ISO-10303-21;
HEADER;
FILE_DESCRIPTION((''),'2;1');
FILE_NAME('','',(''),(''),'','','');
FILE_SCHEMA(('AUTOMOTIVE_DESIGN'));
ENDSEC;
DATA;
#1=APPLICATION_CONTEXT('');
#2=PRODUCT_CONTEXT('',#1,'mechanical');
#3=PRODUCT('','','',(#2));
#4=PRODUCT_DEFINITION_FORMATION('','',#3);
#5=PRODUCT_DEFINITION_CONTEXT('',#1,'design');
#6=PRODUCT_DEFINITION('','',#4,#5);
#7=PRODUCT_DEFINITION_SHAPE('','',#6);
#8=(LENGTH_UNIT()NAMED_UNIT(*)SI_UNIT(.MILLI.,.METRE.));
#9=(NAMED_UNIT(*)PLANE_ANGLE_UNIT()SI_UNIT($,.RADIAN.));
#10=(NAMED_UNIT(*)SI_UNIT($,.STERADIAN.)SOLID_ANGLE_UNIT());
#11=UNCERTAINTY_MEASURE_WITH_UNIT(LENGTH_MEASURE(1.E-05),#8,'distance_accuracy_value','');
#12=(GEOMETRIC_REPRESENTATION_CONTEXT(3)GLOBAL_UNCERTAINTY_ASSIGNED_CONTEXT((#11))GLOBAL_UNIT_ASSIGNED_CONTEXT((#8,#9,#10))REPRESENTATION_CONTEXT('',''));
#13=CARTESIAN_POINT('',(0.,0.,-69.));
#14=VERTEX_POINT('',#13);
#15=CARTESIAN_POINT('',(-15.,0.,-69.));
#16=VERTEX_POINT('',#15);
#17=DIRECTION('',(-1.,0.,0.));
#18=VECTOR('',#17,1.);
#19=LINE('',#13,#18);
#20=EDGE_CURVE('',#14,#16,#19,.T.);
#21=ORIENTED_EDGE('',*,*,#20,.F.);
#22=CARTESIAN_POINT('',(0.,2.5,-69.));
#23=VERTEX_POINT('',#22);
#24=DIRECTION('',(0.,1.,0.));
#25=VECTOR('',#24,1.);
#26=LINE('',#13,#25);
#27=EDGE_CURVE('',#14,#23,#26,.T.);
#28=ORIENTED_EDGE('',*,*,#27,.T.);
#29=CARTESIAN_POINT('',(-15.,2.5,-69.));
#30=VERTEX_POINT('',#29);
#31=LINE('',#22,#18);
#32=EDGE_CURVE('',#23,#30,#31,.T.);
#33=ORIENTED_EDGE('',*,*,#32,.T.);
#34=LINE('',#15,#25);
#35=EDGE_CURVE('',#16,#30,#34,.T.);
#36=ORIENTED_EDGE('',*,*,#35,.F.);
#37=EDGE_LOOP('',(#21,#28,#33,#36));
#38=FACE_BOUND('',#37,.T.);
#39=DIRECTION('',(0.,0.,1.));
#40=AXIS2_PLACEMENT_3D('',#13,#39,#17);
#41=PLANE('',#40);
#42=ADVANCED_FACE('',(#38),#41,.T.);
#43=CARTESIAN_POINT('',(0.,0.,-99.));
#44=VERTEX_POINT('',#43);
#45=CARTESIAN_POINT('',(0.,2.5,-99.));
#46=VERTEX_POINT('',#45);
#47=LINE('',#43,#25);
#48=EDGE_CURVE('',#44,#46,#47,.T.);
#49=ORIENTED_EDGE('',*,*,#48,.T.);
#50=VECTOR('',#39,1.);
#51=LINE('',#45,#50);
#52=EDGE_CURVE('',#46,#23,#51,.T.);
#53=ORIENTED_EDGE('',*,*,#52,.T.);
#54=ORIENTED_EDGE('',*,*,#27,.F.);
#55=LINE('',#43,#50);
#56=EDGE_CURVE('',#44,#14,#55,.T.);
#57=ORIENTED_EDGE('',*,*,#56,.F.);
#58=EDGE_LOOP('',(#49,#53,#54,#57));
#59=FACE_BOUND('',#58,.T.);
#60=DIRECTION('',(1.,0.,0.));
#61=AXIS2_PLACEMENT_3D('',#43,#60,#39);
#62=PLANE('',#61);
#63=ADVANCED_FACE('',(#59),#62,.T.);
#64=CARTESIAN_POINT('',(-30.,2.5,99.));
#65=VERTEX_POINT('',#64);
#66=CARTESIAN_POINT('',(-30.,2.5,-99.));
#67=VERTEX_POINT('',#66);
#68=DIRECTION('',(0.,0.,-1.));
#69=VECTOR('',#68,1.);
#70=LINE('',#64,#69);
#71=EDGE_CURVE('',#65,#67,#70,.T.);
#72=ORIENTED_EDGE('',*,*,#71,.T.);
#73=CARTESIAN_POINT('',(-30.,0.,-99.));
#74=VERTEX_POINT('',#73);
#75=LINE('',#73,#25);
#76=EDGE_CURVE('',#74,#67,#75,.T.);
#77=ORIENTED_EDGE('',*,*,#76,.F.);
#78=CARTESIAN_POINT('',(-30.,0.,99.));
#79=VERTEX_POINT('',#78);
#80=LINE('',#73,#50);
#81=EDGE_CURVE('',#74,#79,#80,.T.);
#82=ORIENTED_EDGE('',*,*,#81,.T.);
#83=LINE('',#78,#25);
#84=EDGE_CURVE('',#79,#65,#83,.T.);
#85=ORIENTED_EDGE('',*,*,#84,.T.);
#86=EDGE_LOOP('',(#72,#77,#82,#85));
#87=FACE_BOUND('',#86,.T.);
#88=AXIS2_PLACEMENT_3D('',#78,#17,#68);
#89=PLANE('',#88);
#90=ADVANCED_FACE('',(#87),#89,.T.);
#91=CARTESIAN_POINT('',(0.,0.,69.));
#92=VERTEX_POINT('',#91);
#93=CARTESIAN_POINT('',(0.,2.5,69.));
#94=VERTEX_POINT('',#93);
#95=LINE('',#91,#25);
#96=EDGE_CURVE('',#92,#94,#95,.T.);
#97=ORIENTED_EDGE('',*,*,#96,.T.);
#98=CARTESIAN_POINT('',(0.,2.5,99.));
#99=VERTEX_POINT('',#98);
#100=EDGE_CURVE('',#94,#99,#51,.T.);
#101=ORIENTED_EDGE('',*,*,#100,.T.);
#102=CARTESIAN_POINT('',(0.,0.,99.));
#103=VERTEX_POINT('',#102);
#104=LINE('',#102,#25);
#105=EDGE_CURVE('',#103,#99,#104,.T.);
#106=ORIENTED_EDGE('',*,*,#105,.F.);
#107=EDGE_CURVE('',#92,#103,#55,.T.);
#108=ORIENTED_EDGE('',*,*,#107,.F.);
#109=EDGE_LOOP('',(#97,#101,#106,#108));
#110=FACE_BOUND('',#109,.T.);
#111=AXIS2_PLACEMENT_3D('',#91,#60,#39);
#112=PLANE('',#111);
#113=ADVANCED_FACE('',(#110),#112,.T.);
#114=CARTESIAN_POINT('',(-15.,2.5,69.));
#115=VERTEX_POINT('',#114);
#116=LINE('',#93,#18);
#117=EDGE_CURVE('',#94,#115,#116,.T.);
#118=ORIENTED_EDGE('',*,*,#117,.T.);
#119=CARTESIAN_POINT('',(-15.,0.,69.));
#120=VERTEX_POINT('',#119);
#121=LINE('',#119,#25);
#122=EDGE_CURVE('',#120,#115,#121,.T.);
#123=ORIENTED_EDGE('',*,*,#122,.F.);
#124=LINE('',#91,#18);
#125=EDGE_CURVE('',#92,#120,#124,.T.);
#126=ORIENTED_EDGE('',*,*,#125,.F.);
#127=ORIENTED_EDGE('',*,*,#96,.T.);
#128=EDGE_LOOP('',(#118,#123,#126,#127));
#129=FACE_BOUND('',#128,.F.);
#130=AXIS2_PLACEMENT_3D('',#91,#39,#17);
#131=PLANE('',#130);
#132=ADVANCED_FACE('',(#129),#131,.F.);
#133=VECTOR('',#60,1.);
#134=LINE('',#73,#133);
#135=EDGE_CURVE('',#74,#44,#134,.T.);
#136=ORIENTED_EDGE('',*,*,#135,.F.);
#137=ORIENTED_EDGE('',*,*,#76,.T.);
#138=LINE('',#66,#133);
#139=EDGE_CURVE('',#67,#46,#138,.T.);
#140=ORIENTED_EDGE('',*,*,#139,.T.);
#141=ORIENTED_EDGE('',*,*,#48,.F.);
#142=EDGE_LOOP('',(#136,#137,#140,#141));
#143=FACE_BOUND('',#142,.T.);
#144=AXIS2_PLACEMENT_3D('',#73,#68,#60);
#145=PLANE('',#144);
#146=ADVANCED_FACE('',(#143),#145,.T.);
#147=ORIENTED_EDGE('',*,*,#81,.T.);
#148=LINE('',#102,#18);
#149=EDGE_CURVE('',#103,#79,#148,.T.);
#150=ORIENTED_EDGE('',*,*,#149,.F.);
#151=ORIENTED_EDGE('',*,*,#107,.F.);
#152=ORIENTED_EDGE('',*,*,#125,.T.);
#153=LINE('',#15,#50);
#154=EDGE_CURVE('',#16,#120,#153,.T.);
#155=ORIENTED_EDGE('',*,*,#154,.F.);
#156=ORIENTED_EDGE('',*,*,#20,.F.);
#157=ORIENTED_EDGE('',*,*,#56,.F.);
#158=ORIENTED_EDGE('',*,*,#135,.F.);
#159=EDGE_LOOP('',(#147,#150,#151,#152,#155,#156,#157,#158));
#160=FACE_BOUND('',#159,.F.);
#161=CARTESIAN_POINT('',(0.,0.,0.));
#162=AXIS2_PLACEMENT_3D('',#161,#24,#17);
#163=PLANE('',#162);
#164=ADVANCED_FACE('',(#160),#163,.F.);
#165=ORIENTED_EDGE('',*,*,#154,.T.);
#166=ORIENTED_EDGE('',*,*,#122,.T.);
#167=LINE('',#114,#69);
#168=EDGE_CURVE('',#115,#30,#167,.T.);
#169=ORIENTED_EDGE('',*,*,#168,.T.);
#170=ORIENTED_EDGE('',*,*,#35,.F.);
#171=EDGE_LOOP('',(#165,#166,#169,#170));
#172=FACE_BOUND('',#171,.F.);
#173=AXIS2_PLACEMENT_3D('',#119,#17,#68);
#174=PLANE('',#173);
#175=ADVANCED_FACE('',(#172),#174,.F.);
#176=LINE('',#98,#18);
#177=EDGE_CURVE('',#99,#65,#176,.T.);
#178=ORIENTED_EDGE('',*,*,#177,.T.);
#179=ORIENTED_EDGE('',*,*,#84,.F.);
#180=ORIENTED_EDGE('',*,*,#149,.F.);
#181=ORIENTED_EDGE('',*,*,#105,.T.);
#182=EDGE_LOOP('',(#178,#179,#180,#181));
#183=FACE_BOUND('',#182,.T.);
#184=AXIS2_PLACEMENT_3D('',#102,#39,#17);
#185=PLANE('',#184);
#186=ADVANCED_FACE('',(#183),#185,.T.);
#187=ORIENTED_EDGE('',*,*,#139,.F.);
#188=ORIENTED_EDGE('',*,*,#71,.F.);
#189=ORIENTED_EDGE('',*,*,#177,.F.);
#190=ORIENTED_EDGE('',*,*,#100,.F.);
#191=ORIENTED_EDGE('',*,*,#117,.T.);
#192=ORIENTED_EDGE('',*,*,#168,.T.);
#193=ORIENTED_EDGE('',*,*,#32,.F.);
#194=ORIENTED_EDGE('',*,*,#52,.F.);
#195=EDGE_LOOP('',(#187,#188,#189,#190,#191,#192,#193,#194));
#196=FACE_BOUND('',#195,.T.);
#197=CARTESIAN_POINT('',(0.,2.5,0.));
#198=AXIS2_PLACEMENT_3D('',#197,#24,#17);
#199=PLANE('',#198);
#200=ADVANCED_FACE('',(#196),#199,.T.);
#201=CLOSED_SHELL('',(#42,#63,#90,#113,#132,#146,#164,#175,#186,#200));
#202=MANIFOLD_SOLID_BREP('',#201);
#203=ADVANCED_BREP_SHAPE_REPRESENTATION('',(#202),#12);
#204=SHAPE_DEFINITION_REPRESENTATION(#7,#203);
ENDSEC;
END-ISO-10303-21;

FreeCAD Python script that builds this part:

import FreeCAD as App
import Part
import Sketcher

V = App.Vector
Q = App.Units.Quantity


def add_polygon(sketch, points):
    """Adds a closed chain of lines whose ends are joined by coincident constraints."""
    first, n = sketch.GeometryCount, len(points)
    for a, b in zip(points, points[1:] + points[:1]):
        sketch.addGeometry(Part.LineSegment(App.Vector(*a, 0), App.Vector(*b, 0)), False)
    for i in range(n):
        sketch.addConstraint(Sketcher.Constraint("Coincident", first + i, 2, first + (i + 1) % n, 1))

doc = App.newDocument("Part")
body = doc.addObject("PartDesign::Body", "Body")

# Sketch on XZ plane
sketch1 = body.newObject("Sketcher::SketchObject", "Sketch")
sketch1.AttachmentSupport = (doc.getObject("XZ_Plane"), [""])
sketch1.MapMode = "FlatFace"
add_polygon(sketch1, [(-30, 99), (0, 99), (0, 69), (-15, 69), (-15, -69), (0, -69), (0, -99), (-30, -99)])  # lines 0-7
sketch1.addConstraint([
    Sketcher.Constraint("Horizontal", 0),
    Sketcher.Constraint("Vertical", 1),
    Sketcher.Constraint("Horizontal", 2),
    Sketcher.Constraint("Vertical", 3),
    Sketcher.Constraint("Horizontal", 4),
    Sketcher.Constraint("Vertical", 5),
    Sketcher.Constraint("Horizontal", 6),
    Sketcher.Constraint("Vertical", 7),
    Sketcher.Constraint("Symmetric", 1, 2, 4, 2, -1, 1),
    Sketcher.Constraint("Symmetric", 0, 2, 5, 2, -1),
    Sketcher.Constraint("Equal", 6, 1),
    Sketcher.Constraint("DistanceX", 0, 1, 0, 2, Q("30 mm")),
    Sketcher.Constraint("DistanceX", 2, 2, 2, 1, Q("15 mm")),
    Sketcher.Constraint("DistanceY", 7, 1, 7, 2, Q("198 mm")),
])
pad1 = body.newObject("PartDesign::Pad", "Pad")
pad1.Profile = sketch1
pad1.Length = 2.5
pad1.Reversed = True

doc.recompute()
